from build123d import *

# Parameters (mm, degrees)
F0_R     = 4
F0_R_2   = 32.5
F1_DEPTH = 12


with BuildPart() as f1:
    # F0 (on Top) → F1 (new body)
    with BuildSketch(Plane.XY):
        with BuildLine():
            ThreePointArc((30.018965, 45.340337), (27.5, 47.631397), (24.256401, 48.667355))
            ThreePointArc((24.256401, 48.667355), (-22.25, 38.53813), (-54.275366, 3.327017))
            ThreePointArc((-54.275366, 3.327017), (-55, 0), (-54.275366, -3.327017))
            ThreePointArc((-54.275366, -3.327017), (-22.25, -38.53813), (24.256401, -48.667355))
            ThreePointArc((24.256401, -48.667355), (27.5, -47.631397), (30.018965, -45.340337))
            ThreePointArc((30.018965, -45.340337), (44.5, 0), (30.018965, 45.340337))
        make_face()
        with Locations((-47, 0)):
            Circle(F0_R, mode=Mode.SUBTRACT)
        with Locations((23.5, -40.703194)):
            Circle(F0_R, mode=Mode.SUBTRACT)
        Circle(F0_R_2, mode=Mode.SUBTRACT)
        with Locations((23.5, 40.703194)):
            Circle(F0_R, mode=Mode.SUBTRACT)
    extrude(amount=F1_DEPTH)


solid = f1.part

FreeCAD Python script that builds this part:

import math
import FreeCAD as App
import Part
import Sketcher

doc = App.newDocument("Part")
body = doc.addObject("PartDesign::Body", "Body")

# Sketch on XY plane
sketch1 = body.newObject("Sketcher::SketchObject", "Sketch")
sketch1.AttachmentSupport = (doc.getObject("XY_Plane"), [""])
sketch1.MapMode = "FlatFace"
sketch1.addGeometry(Part.ArcOfCircle(Part.Circle(App.Vector(23.499998, 40.703191, 0), App.Vector(0, 0, 1), 8.000003), math.radians(35.425436), math.radians(84.574562)), False)
sketch1.addGeometry(Part.ArcOfCircle(Part.Circle(App.Vector(16.860578, -29.203377, 0), App.Vector(0, 0, 1), 78.221155), math.radians(84.574571), math.radians(155.425431)), False)
sketch1.addGeometry(Part.ArcOfCircle(Part.Circle(App.Vector(-47.000005, 0, 0), App.Vector(0, 0, 1), 7.999995), math.radians(155.425418), math.radians(204.574582)), False)
sketch1.addGeometry(Part.ArcOfCircle(Part.Circle(App.Vector(16.860578, 29.203377, 0), App.Vector(0, 0, 1), 78.221155), math.radians(-155.425431), math.radians(-84.574571)), False)
sketch1.addGeometry(Part.ArcOfCircle(Part.Circle(App.Vector(23.499998, -40.703191, 0), App.Vector(0, 0, 1), 8.000003), math.radians(-84.574562), math.radians(-35.425436)), False)
sketch1.addGeometry(Part.ArcOfCircle(Part.Circle(App.Vector(-33.721154, 0, 0), App.Vector(0, 0, 1), 78.221154), math.radians(-35.425431), math.radians(35.425431)), False)
sketch1.addGeometry(Part.Circle(App.Vector(23.5, -40.703194, 0), App.Vector(0, 0, 1), 4), False)
sketch1.addGeometry(Part.Circle(App.Vector(-47, 0, 0), App.Vector(0, 0, 1), 4), False)
sketch1.addGeometry(Part.Circle(App.Vector(0, 0, 0), App.Vector(0, 0, 1), 32.5), False)
sketch1.addGeometry(Part.Circle(App.Vector(23.5, 40.703194, 0), App.Vector(0, 0, 1), 4), False)
sketch1.addConstraint(Sketcher.Constraint("Coincident", 0, 2, 1, 1))
sketch1.addConstraint(Sketcher.Constraint("Coincident", 1, 2, 2, 1))
sketch1.addConstraint(Sketcher.Constraint("Coincident", 2, 2, 3, 1))
sketch1.addConstraint(Sketcher.Constraint("Coincident", 3, 2, 4, 1))
sketch1.addConstraint(Sketcher.Constraint("Coincident", 4, 2, 5, 1))
sketch1.addConstraint(Sketcher.Constraint("Coincident", 5, 2, 0, 1))
sketch1.addConstraint(Sketcher.Constraint("Coincident", 8, 3, -1, 1))
sketch1.addConstraint(Sketcher.Constraint("Coincident", 6, 3, 4, 3))
sketch1.addConstraint(Sketcher.Constraint("Coincident", 7, 3, 2, 3))
sketch1.addConstraint(Sketcher.Constraint("Coincident", 9, 3, 0, 3))
sketch1.addConstraint(Sketcher.Constraint("PointOnObject", 2, 3, -1))
sketch1.addConstraint(Sketcher.Constraint("PointOnObject", 5, 3, -1))
sketch1.addConstraint(Sketcher.Constraint("Diameter", 6, 8.0))
sketch1.addConstraint(Sketcher.Constraint("Diameter", 7, 8.0))
sketch1.addConstraint(Sketcher.Constraint("Diameter", 8, 65.0))
sketch1.addConstraint(Sketcher.Constraint("Diameter", 9, 8.0))
sketch1.addConstraint(Sketcher.Constraint("DistanceX", 7, 3, -1, 1, 47.0))
sketch1.addConstraint(Sketcher.Constraint("DistanceX", -1, 1, 0, 3, 23.499998))
sketch1.addConstraint(Sketcher.Constraint("DistanceX", -1, 1, 4, 3, 23.499998))
sketch1.addConstraint(Sketcher.Constraint("Radius", 0, 8.000003))
sketch1.addConstraint(Sketcher.Constraint("Radius", 1, 78.221155))
sketch1.addConstraint(Sketcher.Constraint("Radius", 2, 7.999995))
sketch1.addConstraint(Sketcher.Constraint("Radius", 3, 78.221155))
sketch1.addConstraint(Sketcher.Constraint("Radius", 4, 8.000003))
sketch1.addConstraint(Sketcher.Constraint("Radius", 5, 78.221154))
sketch1.addConstraint(Sketcher.Constraint("DistanceX", -1, 1, 0, 2, 24.256401))
sketch1.addConstraint(Sketcher.Constraint("DistanceX", -1, 1, 3, 2, 24.256401))
sketch1.addConstraint(Sketcher.Constraint("DistanceY", -1, 1, 0, 3, 40.703191))
sketch1.addConstraint(Sketcher.Constraint("DistanceX", 1, 2, 2, 3, 7.275361))
sketch1.addConstraint(Sketcher.Constraint("DistanceX", 2, 2, 2, 3, 7.275361))
sketch1.addConstraint(Sketcher.Constraint("DistanceY", 3, 2, 4, 2, 3.327018))
sketch1.addConstraint(Sketcher.Constraint("DistanceY", 3, 3, 5, 2, 16.13696))
pad1 = body.newObject("PartDesign::Pad", "Pad")
pad1.Profile = sketch1
pad1.Length = 12

doc.recompute()
